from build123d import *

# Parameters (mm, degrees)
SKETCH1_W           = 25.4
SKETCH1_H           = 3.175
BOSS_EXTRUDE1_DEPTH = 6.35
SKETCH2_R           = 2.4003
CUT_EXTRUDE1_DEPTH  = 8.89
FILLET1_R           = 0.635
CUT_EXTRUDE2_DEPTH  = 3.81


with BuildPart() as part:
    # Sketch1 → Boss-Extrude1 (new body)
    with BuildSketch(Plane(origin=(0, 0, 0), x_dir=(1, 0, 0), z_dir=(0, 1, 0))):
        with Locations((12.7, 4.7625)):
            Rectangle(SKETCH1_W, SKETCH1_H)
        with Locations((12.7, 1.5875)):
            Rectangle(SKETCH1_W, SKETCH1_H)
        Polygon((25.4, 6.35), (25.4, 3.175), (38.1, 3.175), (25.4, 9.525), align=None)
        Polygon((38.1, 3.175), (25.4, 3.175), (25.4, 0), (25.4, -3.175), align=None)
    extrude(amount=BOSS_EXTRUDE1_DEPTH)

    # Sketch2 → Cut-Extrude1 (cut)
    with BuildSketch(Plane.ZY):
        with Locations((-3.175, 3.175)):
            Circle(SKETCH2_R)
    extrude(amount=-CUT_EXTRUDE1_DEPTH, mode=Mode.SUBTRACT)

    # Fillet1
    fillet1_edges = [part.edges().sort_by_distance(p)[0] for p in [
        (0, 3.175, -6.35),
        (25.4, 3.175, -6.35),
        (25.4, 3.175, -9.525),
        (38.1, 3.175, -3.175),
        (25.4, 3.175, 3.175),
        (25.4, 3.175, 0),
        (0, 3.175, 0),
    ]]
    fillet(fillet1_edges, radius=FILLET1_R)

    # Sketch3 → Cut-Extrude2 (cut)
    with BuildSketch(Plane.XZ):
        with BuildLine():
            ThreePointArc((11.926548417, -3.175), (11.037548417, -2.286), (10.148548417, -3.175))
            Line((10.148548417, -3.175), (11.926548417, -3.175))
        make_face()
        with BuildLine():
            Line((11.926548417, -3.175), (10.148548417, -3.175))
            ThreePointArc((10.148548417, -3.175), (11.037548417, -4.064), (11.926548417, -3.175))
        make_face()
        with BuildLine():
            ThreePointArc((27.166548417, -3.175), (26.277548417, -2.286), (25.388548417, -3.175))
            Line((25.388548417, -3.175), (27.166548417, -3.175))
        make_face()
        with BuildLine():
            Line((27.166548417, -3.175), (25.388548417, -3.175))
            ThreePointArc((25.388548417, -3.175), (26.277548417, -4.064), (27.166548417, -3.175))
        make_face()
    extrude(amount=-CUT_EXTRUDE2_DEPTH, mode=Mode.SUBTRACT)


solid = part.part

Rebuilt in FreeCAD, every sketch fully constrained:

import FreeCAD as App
import Part
import Sketcher

V = App.Vector
Q = App.Units.Quantity


def edges_at(feature, points):
    """Names of the edges that pass closest to the given points."""
    edges = feature.Shape.Edges
    near = lambda p: min(range(len(edges)), key=lambda i: edges[i].distToShape(Part.Vertex(*p))[0])
    return sorted({f"Edge{near(p) + 1}" for p in points})


def add_polygon(sketch, points):
    """Adds a closed chain of lines whose ends are joined by coincident constraints."""
    first, n = sketch.GeometryCount, len(points)
    for a, b in zip(points, points[1:] + points[:1]):
        sketch.addGeometry(Part.LineSegment(App.Vector(*a, 0), App.Vector(*b, 0)), False)
    for i in range(n):
        sketch.addConstraint(Sketcher.Constraint("Coincident", first + i, 2, first + (i + 1) % n, 1))

doc = App.newDocument("Part")
params = doc.addObject("Spreadsheet::Sheet", "Params")
for row, (alias, value) in enumerate([
    ("sketch1_width", "1 in"),
    ("sketch1_height", "0.25 in"),
    ("pad1_length", "0.25 in"),
    ("sketch2_diameter", "0.189 in"),
    ("pocket1_length", "0.35 in"),
    ("fillet_radius", "0.025 in"),
    ("sketch3_diameter", "0.07 in"),
    ("pocket2_length", "0.15 in"),
], start=1):
    params.set(f"A{row}", alias)
    params.set(f"B{row}", "=" + value)
    params.setAlias(f"B{row}", alias)

body = doc.addObject("PartDesign::Body", "Body")

sketch1 = body.newObject("Sketcher::SketchObject", "Sketch")
sketch1.AttachmentSupport = (doc.getObject("XZ_Plane"), [""])
sketch1.MapMode = "FlatFace"
add_polygon(sketch1, [(0, -6.35), (0, 0), (25.4, 0), (25.4, 3.175), (38.1, -3.175), (25.4, -9.525), (25.4, -6.35)])
sketch1.addConstraint([
    Sketcher.Constraint("Vertical", 0),
    Sketcher.Constraint("Horizontal", 1),
    Sketcher.Constraint("Vertical", 2),
    Sketcher.Constraint("Vertical", 5),
    Sketcher.Constraint("Horizontal", 6),
    Sketcher.Constraint("Coincident", 0, 2, -1, 1),
    Sketcher.Constraint("Vertical", 2, 2, 4, 2),
    Sketcher.Constraint("Equal", 2, 5),
    Sketcher.Constraint("Equal", 3, 4),
    Sketcher.Constraint("DistanceX", 1, 1, 1, 2, Q("1 in")),
    Sketcher.Constraint("DistanceY", 0, 1, 0, 2, Q("0.25 in")),
    Sketcher.Constraint("DistanceX", -1, 1, 3, 2, Q("1.5 in")),
    Sketcher.Constraint("DistanceY", 4, 2, 2, 2, Q("0.5 in")),
])
sketch1.setExpression("Constraints[16]", "Params.sketch1_width")
sketch1.setExpression("Constraints[17]", "Params.sketch1_height")
pad1 = body.newObject("PartDesign::Pad", "Pad")
pad1.Profile = sketch1
pad1.setExpression("Length", "Params.pad1_length")
pad1.Reversed = True

sketch2 = body.newObject("Sketcher::SketchObject", "Sketch001")
sketch2.AttachmentSupport = (doc.getObject("YZ_Plane"), [""])
sketch2.MapMode = "FlatFace"
sketch2.addGeometry(Part.Circle(V(3.175, -3.175, 0), V(0, 0, 1), 2.4003), False)
sketch2.addConstraint([
    Sketcher.Constraint("Diameter", 0, Q("0.189 in")),
    Sketcher.Constraint("DistanceX", -1, 1, 0, 3, Q("0.125 in")),
    Sketcher.Constraint("DistanceY", 0, 3, -1, 1, Q("0.125 in")),
])
sketch2.setExpression("Constraints[0]", "Params.sketch2_diameter")
pocket1 = body.newObject("PartDesign::Pocket", "Pocket")
pocket1.Profile = sketch2
pocket1.setExpression("Length", "Params.pocket1_length")
pocket1.Reversed = True
doc.recompute()

fillet = body.newObject("PartDesign::Fillet", "Fillet")
fillet.Base = (pocket1, edges_at(pocket1, [
    (0, 3.175, -6.35),
    (25.4, 3.175, -6.35),
    (25.4, 3.175, -9.525),
    (38.1, 3.175, -3.175),
    (25.4, 3.175, 3.175),
    (25.4, 3.175, 0),
    (0, 3.175, 0),
]))
fillet.setExpression("Radius", "Params.fillet_radius")

sketch3 = body.newObject("Sketcher::SketchObject", "Sketch002")
sketch3.AttachmentSupport = (doc.getObject("XZ_Plane"), [""])
sketch3.MapMode = "FlatFace"
sketch3.addGeometry([
    Part.Circle(V(11.037548, -3.175, 0), V(0, 0, 1), 0.889),
    Part.Circle(V(26.277548, -3.175, 0), V(0, 0, 1), 0.889),
], False)
sketch3.addConstraint([
    Sketcher.Constraint("Equal", 0, 1),
    Sketcher.Constraint("Horizontal", 0, 3, 1, 3),
    Sketcher.Constraint("Diameter", 0, Q("0.07 in")),
    Sketcher.Constraint("DistanceX", 0, 3, 1, 3, Q("0.6 in")),
    Sketcher.Constraint("DistanceY", 0, 3, -1, 1, Q("0.125 in")),
    Sketcher.Constraint("DistanceX", -1, 1, 0, 3, Q("11.037548 mm")),
])
sketch3.setExpression("Constraints[2]", "Params.sketch3_diameter")
pocket2 = body.newObject("PartDesign::Pocket", "Pocket001")
pocket2.Profile = sketch3
pocket2.setExpression("Length", "Params.pocket2_length")

doc.recompute()
